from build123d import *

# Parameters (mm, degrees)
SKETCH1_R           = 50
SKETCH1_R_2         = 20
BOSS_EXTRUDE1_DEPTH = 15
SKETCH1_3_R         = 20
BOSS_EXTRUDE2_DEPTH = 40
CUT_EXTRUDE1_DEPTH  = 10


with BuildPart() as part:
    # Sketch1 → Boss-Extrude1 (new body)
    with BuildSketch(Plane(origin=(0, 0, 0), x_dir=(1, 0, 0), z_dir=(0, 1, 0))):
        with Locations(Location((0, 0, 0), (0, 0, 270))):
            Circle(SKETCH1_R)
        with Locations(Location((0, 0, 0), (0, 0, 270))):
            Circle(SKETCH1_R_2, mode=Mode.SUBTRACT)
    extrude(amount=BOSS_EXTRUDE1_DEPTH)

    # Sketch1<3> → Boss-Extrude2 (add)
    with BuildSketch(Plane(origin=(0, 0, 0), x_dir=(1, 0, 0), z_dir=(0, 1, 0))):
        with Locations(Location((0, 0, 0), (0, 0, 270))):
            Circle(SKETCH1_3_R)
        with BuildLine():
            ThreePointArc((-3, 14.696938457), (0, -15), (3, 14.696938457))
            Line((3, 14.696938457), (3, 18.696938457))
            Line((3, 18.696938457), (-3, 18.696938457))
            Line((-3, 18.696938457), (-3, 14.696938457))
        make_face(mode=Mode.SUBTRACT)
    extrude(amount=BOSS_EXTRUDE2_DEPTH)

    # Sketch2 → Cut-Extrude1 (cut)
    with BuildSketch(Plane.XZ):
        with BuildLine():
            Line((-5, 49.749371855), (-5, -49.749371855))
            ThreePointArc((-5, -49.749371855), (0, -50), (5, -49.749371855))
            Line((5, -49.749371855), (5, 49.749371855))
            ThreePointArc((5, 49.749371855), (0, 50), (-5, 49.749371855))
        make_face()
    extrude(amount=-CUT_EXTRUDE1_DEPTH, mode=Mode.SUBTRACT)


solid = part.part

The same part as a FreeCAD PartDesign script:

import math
import FreeCAD as App
import Part
import Sketcher

doc = App.newDocument("Part")
body = doc.addObject("PartDesign::Body", "Body")

# Sketch on XZ plane
sketch1 = body.newObject("Sketcher::SketchObject", "Sketch")
sketch1.AttachmentSupport = (doc.getObject("XZ_Plane"), [""])
sketch1.MapMode = "FlatFace"
sketch1.addGeometry([
    Part.Circle(App.Vector(0, 0, 0), App.Vector(0, 0, 1), 50),
    Part.Circle(App.Vector(0, 0, 0), App.Vector(0, 0, 1), 20),
], False)
sketch1.addConstraint([
    Sketcher.Constraint("Coincident", 0, 3, -1, 1),
    Sketcher.Constraint("Coincident", 1, 3, -1, 1),
    Sketcher.Constraint("Diameter", 0, 100.0),
    Sketcher.Constraint("Diameter", 1, 40.0),
])
pad1 = body.newObject("PartDesign::Pad", "Pad")
pad1.Profile = sketch1
pad1.Length = 15
pad1.Reversed = True

# Sketch on XZ plane
sketch2 = body.newObject("Sketcher::SketchObject", "Sketch001")
sketch2.AttachmentSupport = (doc.getObject("XZ_Plane"), [""])
sketch2.MapMode = "FlatFace"
sketch2.addGeometry([
    Part.Circle(App.Vector(0, 0, 0), App.Vector(0, 0, 1), 20),  # 0
    Part.ArcOfCircle(Part.Circle(App.Vector(0, 0, 0), App.Vector(0, 0, 1), 15), math.radians(-78), math.radians(258)),  # 1
    Part.LineSegment(App.Vector(-3, -14.7, 0), App.Vector(-3, -18.7, 0)),  # 2
    Part.LineSegment(App.Vector(-3, -18.7, 0), App.Vector(3, -18.7, 0)),  # 3
    Part.LineSegment(App.Vector(3, -18.7, 0), App.Vector(3, -14.7, 0)),  # 4
], False)
sketch2.addConstraint([
    Sketcher.Constraint("Coincident", 1, 2, 2, 1),
    Sketcher.Constraint("Coincident", 2, 2, 3, 1),
    Sketcher.Constraint("Coincident", 3, 2, 4, 1),
    Sketcher.Constraint("Coincident", 4, 2, 1, 1),
    Sketcher.Constraint("Vertical", 2),
    Sketcher.Constraint("Horizontal", 3),
    Sketcher.Constraint("Vertical", 4),
    Sketcher.Constraint("Coincident", 0, 3, -1, 1),
    Sketcher.Constraint("Coincident", 1, 3, -1, 1),
    Sketcher.Constraint("Horizontal", 1, 2, 4, 2),
    Sketcher.Constraint("Diameter", 0, 40.0),
    Sketcher.Constraint("Radius", 1, 15.0),
    Sketcher.Constraint("DistanceX", 3, 1, 3, 2, 6.0),
    Sketcher.Constraint("DistanceY", 2, 2, 2, 1, 4.0),
])
pad2 = body.newObject("PartDesign::Pad", "Pad001")
pad2.Profile = sketch2
pad2.Length = 40
pad2.Reversed = True

# Sketch on XZ plane
sketch3 = body.newObject("Sketcher::SketchObject", "Sketch002")
sketch3.AttachmentSupport = (doc.getObject("XZ_Plane"), [""])
sketch3.MapMode = "FlatFace"
sketch3.addGeometry([
    Part.LineSegment(App.Vector(-5, 50, 0), App.Vector(-5, -50, 0)),
    Part.ArcOfCircle(Part.Circle(App.Vector(0, 0, 0), App.Vector(0, 0, 1), 50), math.radians(-95.74), math.radians(-84.26)),
    Part.LineSegment(App.Vector(5, -50, 0), App.Vector(5, 50, 0)),
    Part.ArcOfCircle(Part.Circle(App.Vector(0, 0, 0), App.Vector(0, 0, 1), 50), math.radians(84.26), math.radians(95.74)),
], False)
sketch3.addConstraint([
    Sketcher.Constraint("Coincident", 0, 2, 1, 1),
    Sketcher.Constraint("Coincident", 1, 2, 2, 1),
    Sketcher.Constraint("Coincident", 2, 2, 3, 1),
    Sketcher.Constraint("Coincident", 3, 2, 0, 1),
    Sketcher.Constraint("Vertical", 0),
    Sketcher.Constraint("Vertical", 2),
    Sketcher.Constraint("Coincident", 1, 3, -1, 1),
    Sketcher.Constraint("Coincident", 3, 3, -1, 1),
    Sketcher.Constraint("Equal", 1, 3),
    Sketcher.Constraint("Horizontal", 0, 2, 1, 2),
    Sketcher.Constraint("Radius", 1, 50.0),
    Sketcher.Constraint("DistanceX", 0, 2, -1, 1, 5.0),
])
pocket1 = body.newObject("PartDesign::Pocket", "Pocket")
pocket1.Profile = sketch3
pocket1.Length = 10

doc.recompute()
